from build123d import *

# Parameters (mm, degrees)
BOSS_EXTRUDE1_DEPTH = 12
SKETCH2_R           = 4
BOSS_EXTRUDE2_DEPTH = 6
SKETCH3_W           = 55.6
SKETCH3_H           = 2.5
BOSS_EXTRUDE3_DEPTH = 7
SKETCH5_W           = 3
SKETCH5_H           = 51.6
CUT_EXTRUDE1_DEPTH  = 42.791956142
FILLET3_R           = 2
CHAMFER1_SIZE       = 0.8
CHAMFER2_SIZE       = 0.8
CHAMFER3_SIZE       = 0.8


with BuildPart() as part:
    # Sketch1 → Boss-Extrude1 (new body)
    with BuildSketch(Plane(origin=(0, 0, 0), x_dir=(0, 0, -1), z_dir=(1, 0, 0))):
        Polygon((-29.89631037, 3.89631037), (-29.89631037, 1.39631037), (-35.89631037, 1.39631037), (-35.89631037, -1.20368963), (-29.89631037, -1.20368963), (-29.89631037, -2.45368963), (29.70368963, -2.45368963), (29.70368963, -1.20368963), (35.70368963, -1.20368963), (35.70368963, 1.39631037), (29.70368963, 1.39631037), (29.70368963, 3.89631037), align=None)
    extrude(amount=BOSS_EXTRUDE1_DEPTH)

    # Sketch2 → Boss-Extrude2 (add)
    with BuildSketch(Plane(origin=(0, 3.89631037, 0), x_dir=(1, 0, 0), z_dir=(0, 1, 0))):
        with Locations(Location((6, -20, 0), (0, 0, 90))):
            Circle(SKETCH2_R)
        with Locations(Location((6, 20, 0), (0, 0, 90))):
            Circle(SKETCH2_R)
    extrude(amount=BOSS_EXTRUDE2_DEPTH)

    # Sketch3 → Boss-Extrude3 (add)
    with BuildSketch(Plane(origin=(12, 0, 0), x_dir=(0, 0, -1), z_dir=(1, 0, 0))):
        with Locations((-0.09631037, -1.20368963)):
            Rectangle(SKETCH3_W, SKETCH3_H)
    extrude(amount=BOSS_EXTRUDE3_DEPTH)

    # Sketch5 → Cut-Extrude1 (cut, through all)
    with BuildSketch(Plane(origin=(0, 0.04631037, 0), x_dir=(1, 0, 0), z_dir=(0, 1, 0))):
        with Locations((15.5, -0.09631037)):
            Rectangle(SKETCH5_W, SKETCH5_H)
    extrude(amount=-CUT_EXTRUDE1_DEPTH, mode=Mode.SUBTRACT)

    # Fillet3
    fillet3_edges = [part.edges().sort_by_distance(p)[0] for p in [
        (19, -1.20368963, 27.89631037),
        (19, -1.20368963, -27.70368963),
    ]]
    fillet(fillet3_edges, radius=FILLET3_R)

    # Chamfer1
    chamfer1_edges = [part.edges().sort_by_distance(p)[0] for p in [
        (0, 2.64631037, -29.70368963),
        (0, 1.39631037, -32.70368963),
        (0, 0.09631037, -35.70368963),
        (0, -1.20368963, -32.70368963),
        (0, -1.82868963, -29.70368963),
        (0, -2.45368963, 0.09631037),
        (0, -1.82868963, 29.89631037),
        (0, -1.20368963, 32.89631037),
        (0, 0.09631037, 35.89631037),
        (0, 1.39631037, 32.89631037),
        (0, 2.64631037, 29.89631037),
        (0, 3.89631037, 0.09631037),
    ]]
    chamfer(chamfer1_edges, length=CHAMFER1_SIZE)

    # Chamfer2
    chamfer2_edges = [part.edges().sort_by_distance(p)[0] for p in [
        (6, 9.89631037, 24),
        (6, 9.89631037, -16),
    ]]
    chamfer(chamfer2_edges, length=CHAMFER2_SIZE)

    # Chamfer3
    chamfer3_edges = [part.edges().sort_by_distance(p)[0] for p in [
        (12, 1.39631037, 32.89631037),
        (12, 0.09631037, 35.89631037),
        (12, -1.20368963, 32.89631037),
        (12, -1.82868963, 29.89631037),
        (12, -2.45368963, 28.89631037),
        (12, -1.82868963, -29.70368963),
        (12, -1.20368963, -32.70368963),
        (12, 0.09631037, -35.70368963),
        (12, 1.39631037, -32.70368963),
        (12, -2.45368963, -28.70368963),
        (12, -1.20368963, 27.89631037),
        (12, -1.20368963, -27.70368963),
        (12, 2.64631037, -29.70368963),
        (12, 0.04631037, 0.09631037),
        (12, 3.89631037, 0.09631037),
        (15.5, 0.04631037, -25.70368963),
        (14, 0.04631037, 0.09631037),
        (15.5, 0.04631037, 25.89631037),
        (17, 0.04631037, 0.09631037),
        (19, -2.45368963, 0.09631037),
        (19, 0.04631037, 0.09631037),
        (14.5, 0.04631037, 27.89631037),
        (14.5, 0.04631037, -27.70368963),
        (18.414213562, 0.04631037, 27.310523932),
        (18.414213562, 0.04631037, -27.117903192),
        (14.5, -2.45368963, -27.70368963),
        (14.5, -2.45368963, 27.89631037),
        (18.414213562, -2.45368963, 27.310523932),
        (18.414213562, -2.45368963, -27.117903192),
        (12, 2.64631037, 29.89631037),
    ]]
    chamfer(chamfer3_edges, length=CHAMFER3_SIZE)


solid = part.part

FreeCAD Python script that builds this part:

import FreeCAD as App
import Part
import Sketcher
from FreeCAD import Vector


def edges_at(feature, points):
    """Names of the edges that pass closest to the given points."""
    edges = feature.Shape.Edges
    near = lambda p: min(range(len(edges)), key=lambda i: edges[i].distToShape(Part.Vertex(*p))[0])
    return sorted({f"Edge{near(p) + 1}" for p in points})

doc = App.newDocument("Part")
body = doc.addObject("PartDesign::Body", "Body")

# Sketch on YZ plane
sketch1 = body.newObject("Sketcher::SketchObject", "Sketch")
sketch1.AttachmentSupport = (doc.getObject("YZ_Plane"), [""])
sketch1.MapMode = "FlatFace"
sketch1.addGeometry(Part.LineSegment(Vector(3.9, 29.9, 0), Vector(1.4, 29.9, 0)), False)
sketch1.addGeometry(Part.LineSegment(Vector(1.4, 29.9, 0), Vector(1.4, 35.9, 0)), False)
sketch1.addGeometry(Part.LineSegment(Vector(1.4, 35.9, 0), Vector(-1.2, 35.9, 0)), False)
sketch1.addGeometry(Part.LineSegment(Vector(-1.2, 35.9, 0), Vector(-1.2, 29.9, 0)), False)
sketch1.addGeometry(Part.LineSegment(Vector(-1.2, 29.9, 0), Vector(-2.5, 29.9, 0)), False)
sketch1.addGeometry(Part.LineSegment(Vector(-2.5, 29.9, 0), Vector(-2.5, -29.7, 0)), False)
sketch1.addGeometry(Part.LineSegment(Vector(-2.5, -29.7, 0), Vector(-1.2, -29.7, 0)), False)
sketch1.addGeometry(Part.LineSegment(Vector(-1.2, -29.7, 0), Vector(-1.2, -35.7, 0)), False)
sketch1.addGeometry(Part.LineSegment(Vector(-1.2, -35.7, 0), Vector(1.4, -35.7, 0)), False)
sketch1.addGeometry(Part.LineSegment(Vector(1.4, -35.7, 0), Vector(1.4, -29.7, 0)), False)
sketch1.addGeometry(Part.LineSegment(Vector(1.4, -29.7, 0), Vector(3.9, -29.7, 0)), False)
sketch1.addGeometry(Part.LineSegment(Vector(3.9, -29.7, 0), Vector(3.9, 29.9, 0)), False)
sketch1.addConstraint(Sketcher.Constraint("Coincident", 0, 2, 1, 1))
sketch1.addConstraint(Sketcher.Constraint("Coincident", 1, 2, 2, 1))
sketch1.addConstraint(Sketcher.Constraint("Coincident", 2, 2, 3, 1))
sketch1.addConstraint(Sketcher.Constraint("Coincident", 3, 2, 4, 1))
sketch1.addConstraint(Sketcher.Constraint("Coincident", 4, 2, 5, 1))
sketch1.addConstraint(Sketcher.Constraint("Coincident", 5, 2, 6, 1))
sketch1.addConstraint(Sketcher.Constraint("Coincident", 6, 2, 7, 1))
sketch1.addConstraint(Sketcher.Constraint("Coincident", 7, 2, 8, 1))
sketch1.addConstraint(Sketcher.Constraint("Coincident", 8, 2, 9, 1))
sketch1.addConstraint(Sketcher.Constraint("Coincident", 9, 2, 10, 1))
sketch1.addConstraint(Sketcher.Constraint("Coincident", 10, 2, 11, 1))
sketch1.addConstraint(Sketcher.Constraint("Coincident", 11, 2, 0, 1))
sketch1.addConstraint(Sketcher.Constraint("Horizontal", 0))
sketch1.addConstraint(Sketcher.Constraint("Vertical", 1))
sketch1.addConstraint(Sketcher.Constraint("Horizontal", 2))
sketch1.addConstraint(Sketcher.Constraint("Vertical", 3))
sketch1.addConstraint(Sketcher.Constraint("Horizontal", 4))
sketch1.addConstraint(Sketcher.Constraint("Vertical", 5))
sketch1.addConstraint(Sketcher.Constraint("Horizontal", 6))
sketch1.addConstraint(Sketcher.Constraint("Vertical", 7))
sketch1.addConstraint(Sketcher.Constraint("Horizontal", 8))
sketch1.addConstraint(Sketcher.Constraint("Vertical", 9))
sketch1.addConstraint(Sketcher.Constraint("Horizontal", 10))
sketch1.addConstraint(Sketcher.Constraint("Vertical", 11))
sketch1.addConstraint(Sketcher.Constraint("Horizontal", 0, 2, 3, 2))
sketch1.addConstraint(Sketcher.Constraint("Horizontal", 6, 2, 9, 2))
sketch1.addConstraint(Sketcher.Constraint("Vertical", 3, 2, 6, 2))
sketch1.addConstraint(Sketcher.Constraint("Vertical", 1, 2, 8, 2))
sketch1.addConstraint(Sketcher.Constraint("Equal", 3, 7))
sketch1.addConstraint(Sketcher.Constraint("DistanceY", 1, 1, 1, 2, 6.0))
sketch1.addConstraint(Sketcher.Constraint("DistanceX", 0, 2, 0, 1, 2.5))
sketch1.addConstraint(Sketcher.Constraint("DistanceX", 2, 2, 2, 1, 2.6))
sketch1.addConstraint(Sketcher.Constraint("DistanceY", 5, 2, 5, 1, 59.6))
sketch1.addConstraint(Sketcher.Constraint("DistanceX", 4, 2, 4, 1, 1.25))
sketch1.addConstraint(Sketcher.Constraint("DistanceX", -1, 1, 0, 2, 1.39631))
sketch1.addConstraint(Sketcher.Constraint("DistanceY", -1, 1, 0, 2, 29.89631))
pad1 = body.newObject("PartDesign::Pad", "Pad")
pad1.Profile = sketch1
pad1.Length = 12

# Sketch on XZ plane
sketch2 = body.newObject("Sketcher::SketchObject", "Sketch001")
sketch2.AttachmentSupport = (doc.getObject("XZ_Plane"), [""])
sketch2.MapMode = "FlatFace"
sketch2.AttachmentOffset = App.Placement(Vector(0, 0, -3.89631), App.Rotation())
sketch2.addGeometry(Part.Circle(Vector(6, 20, 0), Vector(0, 0, 1), 4), False)
sketch2.addGeometry(Part.Circle(Vector(6, -20, 0), Vector(0, 0, 1), 4), False)
sketch2.addConstraint(Sketcher.Constraint("Equal", 0, 1))
sketch2.addConstraint(Sketcher.Constraint("Symmetric", 0, 3, 1, 3, -1))
sketch2.addConstraint(Sketcher.Constraint("Diameter", 0, 8.0))
sketch2.addConstraint(Sketcher.Constraint("DistanceX", -1, 1, 0, 3, 6.0))
sketch2.addConstraint(Sketcher.Constraint("DistanceY", -1, 1, 0, 3, 20.0))
pad2 = body.newObject("PartDesign::Pad", "Pad001")
pad2.Profile = sketch2
pad2.Length = 6
pad2.Reversed = True

# Sketch on YZ plane
sketch3 = body.newObject("Sketcher::SketchObject", "Sketch002")
sketch3.AttachmentSupport = (doc.getObject("YZ_Plane"), [""])
sketch3.MapMode = "FlatFace"
sketch3.AttachmentOffset = App.Placement(Vector(0, 0, 12), App.Rotation())
sketch3.addGeometry(Part.LineSegment(Vector(0, 27.9, 0), Vector(-2.5, 27.9, 0)), False)
sketch3.addGeometry(Part.LineSegment(Vector(-2.5, 27.9, 0), Vector(-2.5, -27.7, 0)), False)
sketch3.addGeometry(Part.LineSegment(Vector(-2.5, -27.7, 0), Vector(0, -27.7, 0)), False)
sketch3.addGeometry(Part.LineSegment(Vector(0, -27.7, 0), Vector(0, 27.9, 0)), False)
sketch3.addConstraint(Sketcher.Constraint("Coincident", 0, 2, 1, 1))
sketch3.addConstraint(Sketcher.Constraint("Coincident", 1, 2, 2, 1))
sketch3.addConstraint(Sketcher.Constraint("Coincident", 2, 2, 3, 1))
sketch3.addConstraint(Sketcher.Constraint("Coincident", 3, 2, 0, 1))
sketch3.addConstraint(Sketcher.Constraint("Horizontal", 0))
sketch3.addConstraint(Sketcher.Constraint("Vertical", 1))
sketch3.addConstraint(Sketcher.Constraint("Horizontal", 2))
sketch3.addConstraint(Sketcher.Constraint("Vertical", 3))
sketch3.addConstraint(Sketcher.Constraint("DistanceX", 0, 2, 0, 1, 2.5))
sketch3.addConstraint(Sketcher.Constraint("DistanceY", 1, 2, 1, 1, 55.6))
sketch3.addConstraint(Sketcher.Constraint("DistanceX", 0, 2, -1, 1, 2.45369))
sketch3.addConstraint(Sketcher.Constraint("DistanceY", -1, 1, 0, 2, 27.89631))
pad3 = body.newObject("PartDesign::Pad", "Pad002")
pad3.Profile = sketch3
pad3.Length = 7

# Sketch on XZ plane
sketch4 = body.newObject("Sketcher::SketchObject", "Sketch003")
sketch4.AttachmentSupport = (doc.getObject("XZ_Plane"), [""])
sketch4.MapMode = "FlatFace"
sketch4.AttachmentOffset = App.Placement(Vector(0, 0, -0.04631), App.Rotation())
sketch4.addGeometry(Part.LineSegment(Vector(14, -25.7, 0), Vector(14, 25.9, 0)), False)
sketch4.addGeometry(Part.LineSegment(Vector(14, 25.9, 0), Vector(17, 25.9, 0)), False)
sketch4.addGeometry(Part.LineSegment(Vector(17, 25.9, 0), Vector(17, -25.7, 0)), False)
sketch4.addGeometry(Part.LineSegment(Vector(17, -25.7, 0), Vector(14, -25.7, 0)), False)
sketch4.addConstraint(Sketcher.Constraint("Coincident", 0, 2, 1, 1))
sketch4.addConstraint(Sketcher.Constraint("Coincident", 1, 2, 2, 1))
sketch4.addConstraint(Sketcher.Constraint("Coincident", 2, 2, 3, 1))
sketch4.addConstraint(Sketcher.Constraint("Coincident", 3, 2, 0, 1))
sketch4.addConstraint(Sketcher.Constraint("Vertical", 0))
sketch4.addConstraint(Sketcher.Constraint("Horizontal", 1))
sketch4.addConstraint(Sketcher.Constraint("Vertical", 2))
sketch4.addConstraint(Sketcher.Constraint("Horizontal", 3))
sketch4.addConstraint(Sketcher.Constraint("DistanceX", 1, 1, 1, 2, 3.0))
sketch4.addConstraint(Sketcher.Constraint("DistanceY", 0, 1, 0, 2, 51.6))
sketch4.addConstraint(Sketcher.Constraint("DistanceX", -1, 1, 0, 2, 14.0))
sketch4.addConstraint(Sketcher.Constraint("DistanceY", -1, 1, 0, 2, 25.89631))
pocket1 = body.newObject("PartDesign::Pocket", "Pocket")
pocket1.Profile = sketch4
pocket1.Type = "ThroughAll"
pocket1.Reversed = True
doc.recompute()

fillet = body.newObject("PartDesign::Fillet", "Fillet")
fillet.Base = (pocket1, edges_at(pocket1, [(19, -1.204, 27.896), (19, -1.204, -27.704)]))
fillet.Radius = 2
doc.recompute()

chamfer = body.newObject("PartDesign::Chamfer", "Chamfer")
chamfer.Base = (fillet, edges_at(fillet, [
    (0, 2.646, -29.704),
    (0, 1.396, -32.704),
    (0, 0.096, -35.704),
    (0, -1.204, -32.704),
    (0, -1.829, -29.704),
    (0, -2.454, 0.096),
    (0, -1.829, 29.896),
    (0, -1.204, 32.896),
    (0, 0.096, 35.896),
    (0, 1.396, 32.896),
    (0, 2.646, 29.896),
    (0, 3.896, 0.096),
]))
chamfer.Size = 0.8
doc.recompute()

chamfer2 = body.newObject("PartDesign::Chamfer", "Chamfer001")
chamfer2.Base = (chamfer, edges_at(chamfer, [(6, 9.896, 24), (6, 9.896, -16)]))
chamfer2.Size = 0.8
doc.recompute()

chamfer3 = body.newObject("PartDesign::Chamfer", "Chamfer002")
chamfer3.Base = (chamfer2, edges_at(chamfer2, [
    (12, 1.396, 32.896),
    (12, 0.096, 35.896),
    (12, -1.204, 32.896),
    (12, -1.829, 29.896),
    (12, -2.454, 28.896),
    (12, -1.829, -29.704),
    (12, -1.204, -32.704),
    (12, 0.096, -35.704),
    (12, 1.396, -32.704),
    (12, -2.454, -28.704),
    (12, -1.204, 27.896),
    (12, -1.204, -27.704),
    (12, 2.646, -29.704),
    (12, 0.046, 0.096),
    (12, 3.896, 0.096),
    (15.5, 0.046, -25.704),
    (14, 0.046, 0.096),
    (15.5, 0.046, 25.896),
    (17, 0.046, 0.096),
    (19, -2.454, 0.096),
    (19, 0.046, 0.096),
    (14.5, 0.046, 27.896),
    (14.5, 0.046, -27.704),
    (18.414, 0.046, 27.311),
    (18.414, 0.046, -27.118),
    (14.5, -2.454, -27.704),
    (14.5, -2.454, 27.896),
    (18.414, -2.454, 27.311),
    (18.414, -2.454, -27.118),
    (12, 2.646, 29.896),
]))
chamfer3.Size = 0.8

doc.recompute()
